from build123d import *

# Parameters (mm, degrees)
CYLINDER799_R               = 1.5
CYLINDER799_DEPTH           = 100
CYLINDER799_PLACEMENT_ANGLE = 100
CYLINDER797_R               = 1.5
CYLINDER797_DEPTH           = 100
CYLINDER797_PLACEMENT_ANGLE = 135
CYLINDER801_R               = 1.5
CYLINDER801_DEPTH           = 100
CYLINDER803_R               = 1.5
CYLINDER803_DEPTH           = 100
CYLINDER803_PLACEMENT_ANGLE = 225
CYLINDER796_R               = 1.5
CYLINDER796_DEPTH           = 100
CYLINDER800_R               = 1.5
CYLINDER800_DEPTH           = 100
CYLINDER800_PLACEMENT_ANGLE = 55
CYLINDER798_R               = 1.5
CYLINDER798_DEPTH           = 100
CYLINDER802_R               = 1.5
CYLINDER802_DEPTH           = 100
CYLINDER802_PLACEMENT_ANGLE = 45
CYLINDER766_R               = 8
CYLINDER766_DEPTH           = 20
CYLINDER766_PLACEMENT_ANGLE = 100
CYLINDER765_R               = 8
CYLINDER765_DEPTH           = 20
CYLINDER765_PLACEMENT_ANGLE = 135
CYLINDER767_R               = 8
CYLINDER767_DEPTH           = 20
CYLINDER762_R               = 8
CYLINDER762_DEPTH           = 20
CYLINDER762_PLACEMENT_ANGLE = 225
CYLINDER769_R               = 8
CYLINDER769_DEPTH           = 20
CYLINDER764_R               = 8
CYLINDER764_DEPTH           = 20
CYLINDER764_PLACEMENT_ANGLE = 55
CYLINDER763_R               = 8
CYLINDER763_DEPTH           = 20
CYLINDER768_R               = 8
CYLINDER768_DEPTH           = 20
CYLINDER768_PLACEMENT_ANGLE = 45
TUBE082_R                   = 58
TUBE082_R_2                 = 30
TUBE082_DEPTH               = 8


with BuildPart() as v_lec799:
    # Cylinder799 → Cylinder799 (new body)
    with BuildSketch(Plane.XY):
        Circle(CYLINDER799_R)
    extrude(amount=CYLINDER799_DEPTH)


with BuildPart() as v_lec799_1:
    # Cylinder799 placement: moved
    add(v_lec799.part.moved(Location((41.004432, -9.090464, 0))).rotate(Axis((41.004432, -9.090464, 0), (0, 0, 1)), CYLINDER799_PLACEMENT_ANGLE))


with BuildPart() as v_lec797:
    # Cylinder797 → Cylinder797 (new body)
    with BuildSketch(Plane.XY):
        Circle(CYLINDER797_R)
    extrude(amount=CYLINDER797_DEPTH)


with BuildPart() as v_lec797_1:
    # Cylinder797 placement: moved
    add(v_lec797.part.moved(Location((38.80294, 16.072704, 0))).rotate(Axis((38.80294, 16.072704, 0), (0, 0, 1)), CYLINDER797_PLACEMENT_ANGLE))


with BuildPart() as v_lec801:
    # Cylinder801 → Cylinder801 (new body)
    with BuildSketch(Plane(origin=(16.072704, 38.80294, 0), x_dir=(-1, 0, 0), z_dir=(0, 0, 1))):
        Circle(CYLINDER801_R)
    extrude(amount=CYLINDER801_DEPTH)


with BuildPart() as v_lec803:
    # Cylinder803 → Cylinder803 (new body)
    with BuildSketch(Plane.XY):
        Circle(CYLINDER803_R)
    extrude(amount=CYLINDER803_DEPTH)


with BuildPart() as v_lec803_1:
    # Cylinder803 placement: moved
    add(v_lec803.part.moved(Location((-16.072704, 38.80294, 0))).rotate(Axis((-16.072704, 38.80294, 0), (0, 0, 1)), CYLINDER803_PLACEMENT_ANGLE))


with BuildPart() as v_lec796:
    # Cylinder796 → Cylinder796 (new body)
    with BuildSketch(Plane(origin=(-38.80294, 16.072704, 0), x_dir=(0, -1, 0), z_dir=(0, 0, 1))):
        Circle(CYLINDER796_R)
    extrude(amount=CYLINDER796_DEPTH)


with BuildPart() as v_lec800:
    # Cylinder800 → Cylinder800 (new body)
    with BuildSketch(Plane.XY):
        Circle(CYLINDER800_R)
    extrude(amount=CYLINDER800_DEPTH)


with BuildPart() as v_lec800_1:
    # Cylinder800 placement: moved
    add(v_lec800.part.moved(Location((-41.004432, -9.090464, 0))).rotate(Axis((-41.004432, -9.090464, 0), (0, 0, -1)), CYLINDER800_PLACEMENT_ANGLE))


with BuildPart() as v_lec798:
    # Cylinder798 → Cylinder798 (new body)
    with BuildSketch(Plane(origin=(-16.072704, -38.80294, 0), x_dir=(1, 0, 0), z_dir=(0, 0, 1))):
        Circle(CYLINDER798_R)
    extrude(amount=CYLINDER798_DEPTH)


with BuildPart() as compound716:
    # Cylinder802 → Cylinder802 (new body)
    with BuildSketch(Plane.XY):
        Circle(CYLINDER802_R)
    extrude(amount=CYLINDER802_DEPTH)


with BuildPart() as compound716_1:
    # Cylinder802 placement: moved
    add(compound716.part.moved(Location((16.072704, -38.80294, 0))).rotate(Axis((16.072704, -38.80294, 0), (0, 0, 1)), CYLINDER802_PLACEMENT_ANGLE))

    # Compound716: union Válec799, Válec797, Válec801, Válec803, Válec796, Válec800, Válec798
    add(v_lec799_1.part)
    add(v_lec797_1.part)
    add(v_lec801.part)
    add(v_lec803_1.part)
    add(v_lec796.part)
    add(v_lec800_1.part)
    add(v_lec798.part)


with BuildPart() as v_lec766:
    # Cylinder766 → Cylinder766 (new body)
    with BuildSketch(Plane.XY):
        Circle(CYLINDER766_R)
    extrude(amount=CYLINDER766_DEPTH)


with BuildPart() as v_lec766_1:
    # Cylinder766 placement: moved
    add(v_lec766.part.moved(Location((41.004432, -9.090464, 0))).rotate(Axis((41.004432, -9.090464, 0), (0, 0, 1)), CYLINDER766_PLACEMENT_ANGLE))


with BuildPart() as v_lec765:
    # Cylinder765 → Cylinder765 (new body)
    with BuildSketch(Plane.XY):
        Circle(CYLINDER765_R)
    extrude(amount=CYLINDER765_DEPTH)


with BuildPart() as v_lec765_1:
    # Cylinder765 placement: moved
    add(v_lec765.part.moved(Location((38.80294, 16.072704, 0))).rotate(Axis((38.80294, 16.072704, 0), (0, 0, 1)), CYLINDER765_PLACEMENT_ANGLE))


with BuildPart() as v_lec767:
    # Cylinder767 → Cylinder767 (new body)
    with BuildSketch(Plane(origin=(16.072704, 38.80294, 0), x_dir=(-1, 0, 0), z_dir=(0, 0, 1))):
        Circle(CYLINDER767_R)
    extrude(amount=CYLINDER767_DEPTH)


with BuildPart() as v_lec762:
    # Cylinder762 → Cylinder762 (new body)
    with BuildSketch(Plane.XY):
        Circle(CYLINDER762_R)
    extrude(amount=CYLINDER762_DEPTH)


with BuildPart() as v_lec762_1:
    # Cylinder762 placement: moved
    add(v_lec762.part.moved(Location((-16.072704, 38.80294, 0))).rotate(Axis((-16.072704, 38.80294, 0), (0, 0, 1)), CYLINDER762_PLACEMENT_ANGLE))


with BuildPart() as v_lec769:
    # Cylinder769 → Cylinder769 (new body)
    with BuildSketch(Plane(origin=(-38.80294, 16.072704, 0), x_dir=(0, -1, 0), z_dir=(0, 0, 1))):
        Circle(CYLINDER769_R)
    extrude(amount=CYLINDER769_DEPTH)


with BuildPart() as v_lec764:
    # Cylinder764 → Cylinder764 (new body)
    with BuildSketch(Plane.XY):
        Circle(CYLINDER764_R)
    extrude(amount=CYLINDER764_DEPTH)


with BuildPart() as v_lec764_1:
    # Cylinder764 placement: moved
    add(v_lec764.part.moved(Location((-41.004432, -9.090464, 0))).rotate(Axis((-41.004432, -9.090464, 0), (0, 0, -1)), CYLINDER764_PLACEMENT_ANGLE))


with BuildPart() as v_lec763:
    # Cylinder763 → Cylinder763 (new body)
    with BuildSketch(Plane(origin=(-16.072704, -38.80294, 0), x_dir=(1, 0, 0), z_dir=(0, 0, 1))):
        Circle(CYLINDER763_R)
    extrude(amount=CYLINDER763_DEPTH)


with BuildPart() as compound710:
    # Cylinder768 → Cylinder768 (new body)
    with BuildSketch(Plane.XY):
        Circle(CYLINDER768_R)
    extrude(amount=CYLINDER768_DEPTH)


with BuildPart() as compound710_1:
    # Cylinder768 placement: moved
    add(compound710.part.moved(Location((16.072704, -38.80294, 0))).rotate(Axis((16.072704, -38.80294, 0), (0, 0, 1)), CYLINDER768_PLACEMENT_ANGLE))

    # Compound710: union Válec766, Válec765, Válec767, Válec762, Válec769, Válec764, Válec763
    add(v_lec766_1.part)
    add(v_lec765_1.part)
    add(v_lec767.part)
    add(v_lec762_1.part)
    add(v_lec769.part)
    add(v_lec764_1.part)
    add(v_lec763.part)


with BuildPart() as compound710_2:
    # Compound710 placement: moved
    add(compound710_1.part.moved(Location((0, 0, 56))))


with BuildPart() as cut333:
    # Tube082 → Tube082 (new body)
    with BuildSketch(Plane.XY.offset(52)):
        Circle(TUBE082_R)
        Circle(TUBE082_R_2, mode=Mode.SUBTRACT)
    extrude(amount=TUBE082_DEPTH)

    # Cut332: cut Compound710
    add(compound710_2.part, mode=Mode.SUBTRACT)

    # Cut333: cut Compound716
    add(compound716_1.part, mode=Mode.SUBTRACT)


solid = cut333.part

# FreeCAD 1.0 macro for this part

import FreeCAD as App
import Part
import Sketcher

doc = App.newDocument("Part")
body = doc.addObject("PartDesign::Body", "Body")

# Sketch on XY plane
sketch1 = body.newObject("Sketcher::SketchObject", "Sketch")
sketch1.AttachmentSupport = (doc.getObject("XY_Plane"), [""])
sketch1.MapMode = "FlatFace"
sketch1.addGeometry(Part.Circle(App.Vector(0, 0, 0), App.Vector(0, 0, 1), 1.5), False)
sketch1.addConstraint([
    Sketcher.Constraint("Coincident", 0, 3, -1, 1),
    Sketcher.Constraint("Diameter", 0, 3.0),
])
pad1 = body.newObject("PartDesign::Pad", "Pad")
pad1.Profile = sketch1
pad1.Length = 100
body2 = doc.addObject("PartDesign::Body", "Body001")
doc.recompute()

body.Placement = App.Placement(App.Vector(41.004432, -9.090464, 0), App.Rotation(App.Vector(0, 0, 1), 100))
boolean = body2.newObject("PartDesign::Boolean", "Boolean")
boolean.Type = "Fuse"
boolean.addObjects([body])
body3 = doc.addObject("PartDesign::Body", "Body002")

# Sketch on XY plane
sketch2 = body3.newObject("Sketcher::SketchObject", "Sketch001")
sketch2.AttachmentSupport = (doc.getObject("XY_Plane002"), [""])
sketch2.MapMode = "FlatFace"
sketch2.addGeometry(Part.Circle(App.Vector(0, 0, 0), App.Vector(0, 0, 1), 1.5), False)
sketch2.addConstraint([
    Sketcher.Constraint("Coincident", 0, 3, -1, 1),
    Sketcher.Constraint("Diameter", 0, 3.0),
])
pad2 = body3.newObject("PartDesign::Pad", "Pad001")
pad2.Profile = sketch2
pad2.Length = 100
body4 = doc.addObject("PartDesign::Body", "Body003")
doc.recompute()

body3.Placement = App.Placement(App.Vector(38.80294, 16.072704, 0), App.Rotation(App.Vector(0, 0, 1), 135))
boolean2 = body4.newObject("PartDesign::Boolean", "Boolean001")
boolean2.Type = "Fuse"
boolean2.addObjects([body3])
body5 = doc.addObject("PartDesign::Body", "Body004")

# Sketch on XY plane
sketch3 = body5.newObject("Sketcher::SketchObject", "Sketch002")
sketch3.AttachmentSupport = (doc.getObject("XY_Plane004"), [""])
sketch3.MapMode = "FlatFace"
sketch3.addGeometry(Part.Circle(App.Vector(16.072704, 38.80294, 0), App.Vector(0, 0, 1), 1.5), False)
sketch3.addConstraint([
    Sketcher.Constraint("Diameter", 0, 3.0),
    Sketcher.Constraint("DistanceY", -1, 1, 0, 3, 38.80294),
    Sketcher.Constraint("DistanceX", -1, 1, 0, 3, 16.072704),
])
pad3 = body5.newObject("PartDesign::Pad", "Pad002")
pad3.Profile = sketch3
pad3.Length = 100
body6 = doc.addObject("PartDesign::Body", "Body005")

# Sketch on XY plane
sketch4 = body6.newObject("Sketcher::SketchObject", "Sketch003")
sketch4.AttachmentSupport = (doc.getObject("XY_Plane005"), [""])
sketch4.MapMode = "FlatFace"
sketch4.addGeometry(Part.Circle(App.Vector(0, 0, 0), App.Vector(0, 0, 1), 1.5), False)
sketch4.addConstraint([
    Sketcher.Constraint("Coincident", 0, 3, -1, 1),
    Sketcher.Constraint("Diameter", 0, 3.0),
])
pad4 = body6.newObject("PartDesign::Pad", "Pad003")
pad4.Profile = sketch4
pad4.Length = 100
body7 = doc.addObject("PartDesign::Body", "Body006")
doc.recompute()

body6.Placement = App.Placement(App.Vector(-16.072704, 38.80294, 0), App.Rotation(App.Vector(0, 0, 1), 225))
boolean3 = body7.newObject("PartDesign::Boolean", "Boolean002")
boolean3.Type = "Fuse"
boolean3.addObjects([body6])
body8 = doc.addObject("PartDesign::Body", "Body007")

# Sketch on XY plane
sketch5 = body8.newObject("Sketcher::SketchObject", "Sketch004")
sketch5.AttachmentSupport = (doc.getObject("XY_Plane007"), [""])
sketch5.MapMode = "FlatFace"
sketch5.addGeometry(Part.Circle(App.Vector(-38.80294, 16.072704, 0), App.Vector(0, 0, 1), 1.5), False)
sketch5.addConstraint([
    Sketcher.Constraint("Diameter", 0, 3.0),
    Sketcher.Constraint("DistanceX", 0, 3, -1, 1, 38.80294),
    Sketcher.Constraint("DistanceY", -1, 1, 0, 3, 16.072704),
])
pad5 = body8.newObject("PartDesign::Pad", "Pad004")
pad5.Profile = sketch5
pad5.Length = 100
body9 = doc.addObject("PartDesign::Body", "Body008")

# Sketch on XY plane
sketch6 = body9.newObject("Sketcher::SketchObject", "Sketch005")
sketch6.AttachmentSupport = (doc.getObject("XY_Plane008"), [""])
sketch6.MapMode = "FlatFace"
sketch6.addGeometry(Part.Circle(App.Vector(0, 0, 0), App.Vector(0, 0, 1), 1.5), False)
sketch6.addConstraint([
    Sketcher.Constraint("Coincident", 0, 3, -1, 1),
    Sketcher.Constraint("Diameter", 0, 3.0),
])
pad6 = body9.newObject("PartDesign::Pad", "Pad005")
pad6.Profile = sketch6
pad6.Length = 100
body10 = doc.addObject("PartDesign::Body", "Body009")
doc.recompute()

body9.Placement = App.Placement(App.Vector(-41.004432, -9.090464, 0), App.Rotation(App.Vector(0, 0, -1), 55))
boolean4 = body10.newObject("PartDesign::Boolean", "Boolean003")
boolean4.Type = "Fuse"
boolean4.addObjects([body9])
body11 = doc.addObject("PartDesign::Body", "Body010")

# Sketch on XY plane
sketch7 = body11.newObject("Sketcher::SketchObject", "Sketch006")
sketch7.AttachmentSupport = (doc.getObject("XY_Plane010"), [""])
sketch7.MapMode = "FlatFace"
sketch7.addGeometry(Part.Circle(App.Vector(-16.072704, -38.80294, 0), App.Vector(0, 0, 1), 1.5), False)
sketch7.addConstraint([
    Sketcher.Constraint("Diameter", 0, 3.0),
    Sketcher.Constraint("DistanceY", 0, 3, -1, 1, 38.80294),
    Sketcher.Constraint("DistanceX", 0, 3, -1, 1, 16.072704),
])
pad7 = body11.newObject("PartDesign::Pad", "Pad006")
pad7.Profile = sketch7
pad7.Length = 100
body12 = doc.addObject("PartDesign::Body", "Body011")

# Sketch on XY plane
sketch8 = body12.newObject("Sketcher::SketchObject", "Sketch007")
sketch8.AttachmentSupport = (doc.getObject("XY_Plane011"), [""])
sketch8.MapMode = "FlatFace"
sketch8.addGeometry(Part.Circle(App.Vector(0, 0, 0), App.Vector(0, 0, 1), 1.5), False)
sketch8.addConstraint([
    Sketcher.Constraint("Coincident", 0, 3, -1, 1),
    Sketcher.Constraint("Diameter", 0, 3.0),
])
pad8 = body12.newObject("PartDesign::Pad", "Pad007")
pad8.Profile = sketch8
pad8.Length = 100
body13 = doc.addObject("PartDesign::Body", "Body012")
body13.AllowCompound = True
doc.recompute()

body12.Placement = App.Placement(App.Vector(16.072704, -38.80294, 0), App.Rotation(App.Vector(0, 0, 1), 45))
boolean5 = body13.newObject("PartDesign::Boolean", "Boolean004")
boolean5.Type = "Fuse"
boolean5.addObjects([body12])
doc.recompute()

boolean6 = body13.newObject("PartDesign::Boolean", "Boolean005")
boolean6.Type = "Fuse"
boolean6.addObjects([body2])
doc.recompute()

boolean7 = body13.newObject("PartDesign::Boolean", "Boolean006")
boolean7.Type = "Fuse"
boolean7.addObjects([body4])
doc.recompute()

boolean8 = body13.newObject("PartDesign::Boolean", "Boolean007")
boolean8.Type = "Fuse"
boolean8.addObjects([body5])
doc.recompute()

boolean9 = body13.newObject("PartDesign::Boolean", "Boolean008")
boolean9.Type = "Fuse"
boolean9.addObjects([body7])
doc.recompute()

boolean10 = body13.newObject("PartDesign::Boolean", "Boolean009")
boolean10.Type = "Fuse"
boolean10.addObjects([body8])
doc.recompute()

boolean11 = body13.newObject("PartDesign::Boolean", "Boolean010")
boolean11.Type = "Fuse"
boolean11.addObjects([body10])
doc.recompute()

boolean12 = body13.newObject("PartDesign::Boolean", "Boolean011")
boolean12.Type = "Fuse"
boolean12.addObjects([body11])
body14 = doc.addObject("PartDesign::Body", "Body013")

# Sketch on XY plane
sketch9 = body14.newObject("Sketcher::SketchObject", "Sketch008")
sketch9.AttachmentSupport = (doc.getObject("XY_Plane013"), [""])
sketch9.MapMode = "FlatFace"
sketch9.addGeometry(Part.Circle(App.Vector(0, 0, 0), App.Vector(0, 0, 1), 8), False)
sketch9.addConstraint([
    Sketcher.Constraint("Coincident", 0, 3, -1, 1),
    Sketcher.Constraint("Diameter", 0, 16.0),
])
pad9 = body14.newObject("PartDesign::Pad", "Pad008")
pad9.Profile = sketch9
pad9.Length = 20
body15 = doc.addObject("PartDesign::Body", "Body014")
doc.recompute()

body14.Placement = App.Placement(App.Vector(41.004432, -9.090464, 0), App.Rotation(App.Vector(0, 0, 1), 100))
boolean13 = body15.newObject("PartDesign::Boolean", "Boolean012")
boolean13.Type = "Fuse"
boolean13.addObjects([body14])
body16 = doc.addObject("PartDesign::Body", "Body015")

# Sketch on XY plane
sketch10 = body16.newObject("Sketcher::SketchObject", "Sketch009")
sketch10.AttachmentSupport = (doc.getObject("XY_Plane015"), [""])
sketch10.MapMode = "FlatFace"
sketch10.addGeometry(Part.Circle(App.Vector(0, 0, 0), App.Vector(0, 0, 1), 8), False)
sketch10.addConstraint([
    Sketcher.Constraint("Coincident", 0, 3, -1, 1),
    Sketcher.Constraint("Diameter", 0, 16.0),
])
pad10 = body16.newObject("PartDesign::Pad", "Pad009")
pad10.Profile = sketch10
pad10.Length = 20
body17 = doc.addObject("PartDesign::Body", "Body016")
doc.recompute()

body16.Placement = App.Placement(App.Vector(38.80294, 16.072704, 0), App.Rotation(App.Vector(0, 0, 1), 135))
boolean14 = body17.newObject("PartDesign::Boolean", "Boolean013")
boolean14.Type = "Fuse"
boolean14.addObjects([body16])
body18 = doc.addObject("PartDesign::Body", "Body017")

# Sketch on XY plane
sketch11 = body18.newObject("Sketcher::SketchObject", "Sketch010")
sketch11.AttachmentSupport = (doc.getObject("XY_Plane017"), [""])
sketch11.MapMode = "FlatFace"
sketch11.addGeometry(Part.Circle(App.Vector(16.072704, 38.80294, 0), App.Vector(0, 0, 1), 8), False)
sketch11.addConstraint([
    Sketcher.Constraint("Diameter", 0, 16.0),
    Sketcher.Constraint("DistanceY", -1, 1, 0, 3, 38.80294),
    Sketcher.Constraint("DistanceX", -1, 1, 0, 3, 16.072704),
])
pad11 = body18.newObject("PartDesign::Pad", "Pad010")
pad11.Profile = sketch11
pad11.Length = 20
body19 = doc.addObject("PartDesign::Body", "Body018")

# Sketch on XY plane
sketch12 = body19.newObject("Sketcher::SketchObject", "Sketch011")
sketch12.AttachmentSupport = (doc.getObject("XY_Plane018"), [""])
sketch12.MapMode = "FlatFace"
sketch12.addGeometry(Part.Circle(App.Vector(0, 0, 0), App.Vector(0, 0, 1), 8), False)
sketch12.addConstraint([
    Sketcher.Constraint("Coincident", 0, 3, -1, 1),
    Sketcher.Constraint("Diameter", 0, 16.0),
])
pad12 = body19.newObject("PartDesign::Pad", "Pad011")
pad12.Profile = sketch12
pad12.Length = 20
body20 = doc.addObject("PartDesign::Body", "Body019")
doc.recompute()

body19.Placement = App.Placement(App.Vector(-16.072704, 38.80294, 0), App.Rotation(App.Vector(0, 0, 1), 225))
boolean15 = body20.newObject("PartDesign::Boolean", "Boolean014")
boolean15.Type = "Fuse"
boolean15.addObjects([body19])
body21 = doc.addObject("PartDesign::Body", "Body020")

# Sketch on XY plane
sketch13 = body21.newObject("Sketcher::SketchObject", "Sketch012")
sketch13.AttachmentSupport = (doc.getObject("XY_Plane020"), [""])
sketch13.MapMode = "FlatFace"
sketch13.addGeometry(Part.Circle(App.Vector(-38.80294, 16.072704, 0), App.Vector(0, 0, 1), 8), False)
sketch13.addConstraint([
    Sketcher.Constraint("Diameter", 0, 16.0),
    Sketcher.Constraint("DistanceX", 0, 3, -1, 1, 38.80294),
    Sketcher.Constraint("DistanceY", -1, 1, 0, 3, 16.072704),
])
pad13 = body21.newObject("PartDesign::Pad", "Pad012")
pad13.Profile = sketch13
pad13.Length = 20
body22 = doc.addObject("PartDesign::Body", "Body021")

# Sketch on XY plane
sketch14 = body22.newObject("Sketcher::SketchObject", "Sketch013")
sketch14.AttachmentSupport = (doc.getObject("XY_Plane021"), [""])
sketch14.MapMode = "FlatFace"
sketch14.addGeometry(Part.Circle(App.Vector(0, 0, 0), App.Vector(0, 0, 1), 8), False)
sketch14.addConstraint([
    Sketcher.Constraint("Coincident", 0, 3, -1, 1),
    Sketcher.Constraint("Diameter", 0, 16.0),
])
pad14 = body22.newObject("PartDesign::Pad", "Pad013")
pad14.Profile = sketch14
pad14.Length = 20
body23 = doc.addObject("PartDesign::Body", "Body022")
doc.recompute()

body22.Placement = App.Placement(App.Vector(-41.004432, -9.090464, 0), App.Rotation(App.Vector(0, 0, -1), 55))
boolean16 = body23.newObject("PartDesign::Boolean", "Boolean015")
boolean16.Type = "Fuse"
boolean16.addObjects([body22])
body24 = doc.addObject("PartDesign::Body", "Body023")

# Sketch on XY plane
sketch15 = body24.newObject("Sketcher::SketchObject", "Sketch014")
sketch15.AttachmentSupport = (doc.getObject("XY_Plane023"), [""])
sketch15.MapMode = "FlatFace"
sketch15.addGeometry(Part.Circle(App.Vector(-16.072704, -38.80294, 0), App.Vector(0, 0, 1), 8), False)
sketch15.addConstraint([
    Sketcher.Constraint("Diameter", 0, 16.0),
    Sketcher.Constraint("DistanceY", 0, 3, -1, 1, 38.80294),
    Sketcher.Constraint("DistanceX", 0, 3, -1, 1, 16.072704),
])
pad15 = body24.newObject("PartDesign::Pad", "Pad014")
pad15.Profile = sketch15
pad15.Length = 20
body25 = doc.addObject("PartDesign::Body", "Body024")

# Sketch on XY plane
sketch16 = body25.newObject("Sketcher::SketchObject", "Sketch015")
sketch16.AttachmentSupport = (doc.getObject("XY_Plane024"), [""])
sketch16.MapMode = "FlatFace"
sketch16.addGeometry(Part.Circle(App.Vector(0, 0, 0), App.Vector(0, 0, 1), 8), False)
sketch16.addConstraint([
    Sketcher.Constraint("Coincident", 0, 3, -1, 1),
    Sketcher.Constraint("Diameter", 0, 16.0),
])
pad16 = body25.newObject("PartDesign::Pad", "Pad015")
pad16.Profile = sketch16
pad16.Length = 20
body26 = doc.addObject("PartDesign::Body", "Body025")
body26.AllowCompound = True
doc.recompute()

body25.Placement = App.Placement(App.Vector(16.072704, -38.80294, 0), App.Rotation(App.Vector(0, 0, 1), 45))
boolean17 = body26.newObject("PartDesign::Boolean", "Boolean016")
boolean17.Type = "Fuse"
boolean17.addObjects([body25])
doc.recompute()

boolean18 = body26.newObject("PartDesign::Boolean", "Boolean017")
boolean18.Type = "Fuse"
boolean18.addObjects([body15])
doc.recompute()

boolean19 = body26.newObject("PartDesign::Boolean", "Boolean018")
boolean19.Type = "Fuse"
boolean19.addObjects([body17])
doc.recompute()

boolean20 = body26.newObject("PartDesign::Boolean", "Boolean019")
boolean20.Type = "Fuse"
boolean20.addObjects([body18])
doc.recompute()

boolean21 = body26.newObject("PartDesign::Boolean", "Boolean020")
boolean21.Type = "Fuse"
boolean21.addObjects([body20])
doc.recompute()

boolean22 = body26.newObject("PartDesign::Boolean", "Boolean021")
boolean22.Type = "Fuse"
boolean22.addObjects([body21])
doc.recompute()

boolean23 = body26.newObject("PartDesign::Boolean", "Boolean022")
boolean23.Type = "Fuse"
boolean23.addObjects([body23])
doc.recompute()

boolean24 = body26.newObject("PartDesign::Boolean", "Boolean023")
boolean24.Type = "Fuse"
boolean24.addObjects([body24])
body27 = doc.addObject("PartDesign::Body", "Body026")
body27.AllowCompound = True
doc.recompute()

body26.Placement = App.Placement(App.Vector(0, 0, 56), App.Rotation(App.Vector(0, 0, 1), 0))
boolean25 = body27.newObject("PartDesign::Boolean", "Boolean024")
boolean25.Type = "Fuse"
boolean25.addObjects([body26])
body28 = doc.addObject("PartDesign::Body", "Body027")

# Sketch on XY plane
sketch17 = body28.newObject("Sketcher::SketchObject", "Sketch016")
sketch17.AttachmentSupport = (doc.getObject("XY_Plane027"), [""])
sketch17.MapMode = "FlatFace"
sketch17.AttachmentOffset = App.Placement(App.Vector(0, 0, 52), App.Rotation())
sketch17.addGeometry([
    Part.Circle(App.Vector(0, 0, 0), App.Vector(0, 0, 1), 58),
    Part.Circle(App.Vector(0, 0, 0), App.Vector(0, 0, 1), 30),
], False)
sketch17.addConstraint([
    Sketcher.Constraint("Coincident", 0, 3, -1, 1),
    Sketcher.Constraint("Coincident", 1, 3, -1, 1),
    Sketcher.Constraint("Diameter", 0, 116.0),
    Sketcher.Constraint("Diameter", 1, 60.0),
])
pad17 = body28.newObject("PartDesign::Pad", "Pad016")
pad17.Profile = sketch17
pad17.Length = 8
doc.recompute()

boolean26 = body28.newObject("PartDesign::Boolean", "Boolean025")
boolean26.Type = "Cut"
boolean26.addObjects([body27])
doc.recompute()

boolean27 = body28.newObject("PartDesign::Boolean", "Boolean026")
boolean27.Type = "Cut"
boolean27.addObjects([body13])

doc.recompute()
